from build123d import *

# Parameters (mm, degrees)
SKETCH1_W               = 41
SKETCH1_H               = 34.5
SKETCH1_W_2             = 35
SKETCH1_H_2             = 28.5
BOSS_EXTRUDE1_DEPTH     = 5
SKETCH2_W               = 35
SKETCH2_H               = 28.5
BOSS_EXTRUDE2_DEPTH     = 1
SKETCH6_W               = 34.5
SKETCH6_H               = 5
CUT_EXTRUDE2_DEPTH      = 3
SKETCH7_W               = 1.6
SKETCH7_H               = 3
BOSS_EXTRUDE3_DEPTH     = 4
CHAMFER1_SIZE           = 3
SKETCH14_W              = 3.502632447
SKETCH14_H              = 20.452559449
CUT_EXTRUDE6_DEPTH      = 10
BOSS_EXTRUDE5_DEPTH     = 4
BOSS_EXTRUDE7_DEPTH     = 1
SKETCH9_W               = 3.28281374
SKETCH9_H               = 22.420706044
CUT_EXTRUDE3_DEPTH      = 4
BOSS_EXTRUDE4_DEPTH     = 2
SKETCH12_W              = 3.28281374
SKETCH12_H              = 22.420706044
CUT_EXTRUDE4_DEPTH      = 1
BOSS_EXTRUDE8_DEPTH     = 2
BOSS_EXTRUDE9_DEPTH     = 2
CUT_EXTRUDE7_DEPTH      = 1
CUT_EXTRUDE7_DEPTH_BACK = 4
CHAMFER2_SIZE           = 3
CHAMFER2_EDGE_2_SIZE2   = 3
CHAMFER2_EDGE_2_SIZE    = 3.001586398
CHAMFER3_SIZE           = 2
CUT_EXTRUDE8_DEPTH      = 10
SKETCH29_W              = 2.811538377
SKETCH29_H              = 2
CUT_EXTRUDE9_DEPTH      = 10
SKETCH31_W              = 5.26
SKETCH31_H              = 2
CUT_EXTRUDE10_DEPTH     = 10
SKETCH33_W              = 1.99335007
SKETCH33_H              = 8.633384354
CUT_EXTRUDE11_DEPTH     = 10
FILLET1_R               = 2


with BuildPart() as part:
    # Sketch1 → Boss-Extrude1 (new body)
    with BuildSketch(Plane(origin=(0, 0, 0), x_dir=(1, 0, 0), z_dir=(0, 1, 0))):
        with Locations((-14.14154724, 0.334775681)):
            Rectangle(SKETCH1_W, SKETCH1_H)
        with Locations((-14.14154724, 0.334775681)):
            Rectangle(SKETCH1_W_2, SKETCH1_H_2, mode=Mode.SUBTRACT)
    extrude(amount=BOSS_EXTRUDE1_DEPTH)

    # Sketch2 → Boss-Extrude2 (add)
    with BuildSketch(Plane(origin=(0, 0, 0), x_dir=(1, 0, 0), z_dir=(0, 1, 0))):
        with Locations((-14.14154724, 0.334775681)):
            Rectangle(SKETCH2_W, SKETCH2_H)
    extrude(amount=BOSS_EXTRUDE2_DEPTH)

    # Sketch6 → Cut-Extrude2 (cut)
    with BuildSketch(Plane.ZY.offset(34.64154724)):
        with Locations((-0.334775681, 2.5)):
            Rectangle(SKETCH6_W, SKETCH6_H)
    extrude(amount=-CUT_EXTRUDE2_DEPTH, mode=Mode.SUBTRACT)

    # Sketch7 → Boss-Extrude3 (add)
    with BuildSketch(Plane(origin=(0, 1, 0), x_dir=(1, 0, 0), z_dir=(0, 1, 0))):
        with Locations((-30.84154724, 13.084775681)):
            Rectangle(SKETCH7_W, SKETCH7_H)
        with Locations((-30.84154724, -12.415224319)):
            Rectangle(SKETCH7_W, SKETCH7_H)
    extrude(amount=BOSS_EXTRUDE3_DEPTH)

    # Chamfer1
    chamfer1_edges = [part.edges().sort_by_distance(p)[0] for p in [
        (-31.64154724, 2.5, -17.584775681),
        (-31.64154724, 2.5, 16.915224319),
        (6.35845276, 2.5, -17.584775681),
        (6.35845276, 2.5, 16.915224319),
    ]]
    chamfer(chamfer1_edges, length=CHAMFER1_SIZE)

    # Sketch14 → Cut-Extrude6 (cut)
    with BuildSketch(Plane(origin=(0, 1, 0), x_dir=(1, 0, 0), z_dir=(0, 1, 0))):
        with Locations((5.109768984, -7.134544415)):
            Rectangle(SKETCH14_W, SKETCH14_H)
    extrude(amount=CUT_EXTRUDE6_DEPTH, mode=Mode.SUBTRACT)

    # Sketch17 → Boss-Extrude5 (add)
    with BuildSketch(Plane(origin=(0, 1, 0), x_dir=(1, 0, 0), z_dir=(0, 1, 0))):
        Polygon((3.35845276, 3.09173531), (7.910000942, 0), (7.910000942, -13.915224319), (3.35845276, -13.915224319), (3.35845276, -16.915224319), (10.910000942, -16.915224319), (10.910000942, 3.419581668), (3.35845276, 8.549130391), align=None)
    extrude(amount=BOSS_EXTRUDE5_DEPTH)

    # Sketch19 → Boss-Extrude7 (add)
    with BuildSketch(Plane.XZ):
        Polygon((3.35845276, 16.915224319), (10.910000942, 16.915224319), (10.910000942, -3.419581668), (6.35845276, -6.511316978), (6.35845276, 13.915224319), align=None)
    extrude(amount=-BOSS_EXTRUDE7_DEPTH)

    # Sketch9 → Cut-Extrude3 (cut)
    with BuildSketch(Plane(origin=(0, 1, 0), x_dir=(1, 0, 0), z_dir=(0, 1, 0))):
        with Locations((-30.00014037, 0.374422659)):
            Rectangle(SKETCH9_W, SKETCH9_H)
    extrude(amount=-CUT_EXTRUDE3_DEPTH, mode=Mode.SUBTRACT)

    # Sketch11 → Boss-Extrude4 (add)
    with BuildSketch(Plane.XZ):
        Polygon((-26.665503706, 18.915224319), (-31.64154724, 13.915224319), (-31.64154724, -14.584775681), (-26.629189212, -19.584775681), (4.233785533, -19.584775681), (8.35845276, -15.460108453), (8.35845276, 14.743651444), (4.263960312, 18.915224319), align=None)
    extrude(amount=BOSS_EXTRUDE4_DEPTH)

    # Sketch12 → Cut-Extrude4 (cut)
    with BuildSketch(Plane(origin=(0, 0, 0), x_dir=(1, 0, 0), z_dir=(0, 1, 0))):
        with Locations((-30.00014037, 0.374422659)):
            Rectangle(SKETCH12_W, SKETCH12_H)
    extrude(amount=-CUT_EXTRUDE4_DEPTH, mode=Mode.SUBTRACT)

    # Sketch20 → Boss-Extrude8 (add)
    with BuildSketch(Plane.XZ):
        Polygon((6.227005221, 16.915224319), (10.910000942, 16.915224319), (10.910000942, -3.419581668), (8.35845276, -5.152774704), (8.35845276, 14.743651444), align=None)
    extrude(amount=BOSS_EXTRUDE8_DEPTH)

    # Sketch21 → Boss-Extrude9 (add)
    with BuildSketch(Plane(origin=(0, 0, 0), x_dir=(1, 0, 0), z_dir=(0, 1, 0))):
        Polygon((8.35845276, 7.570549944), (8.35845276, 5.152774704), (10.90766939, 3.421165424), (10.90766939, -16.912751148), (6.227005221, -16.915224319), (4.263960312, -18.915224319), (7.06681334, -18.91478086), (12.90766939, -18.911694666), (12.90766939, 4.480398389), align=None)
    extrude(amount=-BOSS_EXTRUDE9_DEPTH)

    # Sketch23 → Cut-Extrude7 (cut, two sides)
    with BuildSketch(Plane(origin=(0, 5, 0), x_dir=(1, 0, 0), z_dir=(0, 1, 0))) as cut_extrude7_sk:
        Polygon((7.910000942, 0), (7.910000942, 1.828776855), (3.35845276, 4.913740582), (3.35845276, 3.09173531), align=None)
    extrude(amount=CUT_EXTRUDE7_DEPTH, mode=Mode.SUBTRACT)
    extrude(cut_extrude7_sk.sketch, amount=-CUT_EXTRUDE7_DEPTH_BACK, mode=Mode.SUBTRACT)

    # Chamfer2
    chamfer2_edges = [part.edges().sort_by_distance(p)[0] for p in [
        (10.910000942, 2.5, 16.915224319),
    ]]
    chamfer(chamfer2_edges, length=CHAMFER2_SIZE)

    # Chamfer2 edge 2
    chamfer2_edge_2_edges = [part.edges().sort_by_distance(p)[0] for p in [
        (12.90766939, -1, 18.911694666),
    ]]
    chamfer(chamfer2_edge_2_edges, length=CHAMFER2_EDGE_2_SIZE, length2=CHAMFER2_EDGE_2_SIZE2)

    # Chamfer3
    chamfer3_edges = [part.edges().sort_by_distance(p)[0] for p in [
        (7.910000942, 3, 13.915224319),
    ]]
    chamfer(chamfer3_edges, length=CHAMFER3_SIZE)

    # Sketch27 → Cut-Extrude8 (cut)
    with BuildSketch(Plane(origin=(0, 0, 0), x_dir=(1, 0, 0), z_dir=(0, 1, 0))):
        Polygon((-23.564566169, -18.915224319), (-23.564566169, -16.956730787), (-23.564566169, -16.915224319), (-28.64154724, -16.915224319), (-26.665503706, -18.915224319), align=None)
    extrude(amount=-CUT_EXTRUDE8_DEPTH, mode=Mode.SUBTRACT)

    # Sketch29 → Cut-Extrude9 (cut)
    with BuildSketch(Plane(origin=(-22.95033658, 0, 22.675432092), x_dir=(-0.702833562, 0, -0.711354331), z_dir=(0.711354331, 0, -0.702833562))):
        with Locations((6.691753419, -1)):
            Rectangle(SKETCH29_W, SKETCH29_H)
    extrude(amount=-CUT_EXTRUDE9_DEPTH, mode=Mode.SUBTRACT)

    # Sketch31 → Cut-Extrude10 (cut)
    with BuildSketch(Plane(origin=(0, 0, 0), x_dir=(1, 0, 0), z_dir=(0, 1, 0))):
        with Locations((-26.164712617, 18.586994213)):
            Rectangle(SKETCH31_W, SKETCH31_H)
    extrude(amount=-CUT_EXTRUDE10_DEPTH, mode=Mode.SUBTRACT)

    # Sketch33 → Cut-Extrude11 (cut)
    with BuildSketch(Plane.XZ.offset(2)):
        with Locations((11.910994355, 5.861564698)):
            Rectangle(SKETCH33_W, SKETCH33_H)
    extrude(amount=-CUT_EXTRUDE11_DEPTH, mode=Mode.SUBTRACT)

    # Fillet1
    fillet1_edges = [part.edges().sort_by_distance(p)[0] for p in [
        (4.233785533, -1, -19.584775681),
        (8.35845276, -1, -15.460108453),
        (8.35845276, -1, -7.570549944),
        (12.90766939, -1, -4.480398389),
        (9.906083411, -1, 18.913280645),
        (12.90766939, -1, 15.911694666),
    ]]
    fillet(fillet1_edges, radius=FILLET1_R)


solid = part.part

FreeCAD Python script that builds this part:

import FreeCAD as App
import Part
import Sketcher
Q = App.Units.Quantity


def edges_at(feature, points):
    """Names of the edges that pass closest to the given points."""
    edges = feature.Shape.Edges
    near = lambda p: min(range(len(edges)), key=lambda i: edges[i].distToShape(Part.Vertex(*p))[0])
    return sorted({f"Edge{near(p) + 1}" for p in points})

doc = App.newDocument("Part")
params = doc.addObject("Spreadsheet::Sheet", "Params")
for row, (alias, value) in enumerate([
    ("sketch1_width", "41 mm"),
    ("sketch1_width2", "35 mm"),
    ("sketch1_height", "34.5 mm"),
    ("sketch1_height2", "28.5 mm"),
    ("pad1_length", "5 mm"),
    ("sketch2_width", "35 mm"),
    ("sketch2_height", "28.5 mm"),
    ("pad2_length", "1 mm"),
    ("sketch3_width", "5 mm"),
    ("sketch3_height", "34.5 mm"),
    ("pocket1_length", "3 mm"),
    ("sketch4_height", "3 mm"),
    ("sketch4_width", "1.6 mm"),
    ("pad3_length", "4 mm"),
    ("chamfer_size", "3 mm"),
    ("pocket2_length", "10 mm"),
    ("sketch6_height", "3 mm"),
    ("pad4_length", "4 mm"),
    ("pad5_length", "1 mm"),
    ("pocket3_length", "4 mm"),
    ("sketch9_height", "28.5 mm"),
    ("pad6_length", "2 mm"),
    ("pocket4_length", "1 mm"),
    ("pad7_length", "2 mm"),
    ("pad8_length", "2 mm"),
    ("pocket5_length", "1 mm"),
    ("pocket5_length2", "4 mm"),
    ("chamfer2_size", "3 mm"),
    ("chamfer3_size", "3.001586 mm"),
    ("chamfer3_size2", "3 mm"),
    ("chamfer4_size", "2 mm"),
    ("sketch14_height", "2 mm"),
    ("pocket6_length", "10 mm"),
    ("sketch15_height", "2 mm"),
    ("pocket7_length", "10 mm"),
    ("sketch16_height", "2 mm"),
    ("sketch16_width", "5.26 mm"),
    ("pocket8_length", "10 mm"),
    ("pocket9_length", "10 mm"),
    ("fillet_radius", "2 mm"),
], start=1):
    params.set(f"A{row}", alias)
    params.set(f"B{row}", "=" + value)
    params.setAlias(f"B{row}", alias)

body = doc.addObject("PartDesign::Body", "Body")

# Sketch on XZ plane
sketch1 = doc.addObject("Sketcher::SketchObject", "Sketch")
body.addObject(sketch1)
sketch1.AttachmentSupport = (doc.XZ_Plane, [""])
sketch1.MapMode = "FlatFace"
sketch1.addGeometry([
    Part.LineSegment(App.Vector(-35, -18, 0), App.Vector(-35, 17, 0)),  # 0
    Part.LineSegment(App.Vector(-35, 17, 0), App.Vector(6, 17, 0)),  # 1
    Part.LineSegment(App.Vector(6, 17, 0), App.Vector(6, -18, 0)),  # 2
    Part.LineSegment(App.Vector(6, -18, 0), App.Vector(-35, -18, 0)),  # 3
    Part.LineSegment(App.Vector(3, 14, 0), App.Vector(-32, 14, 0)),  # 4
    Part.LineSegment(App.Vector(-32, 14, 0), App.Vector(-32, -15, 0)),  # 5
    Part.LineSegment(App.Vector(-32, -15, 0), App.Vector(3, -15, 0)),  # 6
    Part.LineSegment(App.Vector(3, -15, 0), App.Vector(3, 14, 0)),  # 7
], False)
sketch1.addConstraint([
    Sketcher.Constraint("Coincident", 0, 2, 1, 1),
    Sketcher.Constraint("Coincident", 1, 2, 2, 1),
    Sketcher.Constraint("Coincident", 2, 2, 3, 1),
    Sketcher.Constraint("Coincident", 3, 2, 0, 1),
    Sketcher.Constraint("Coincident", 4, 2, 5, 1),
    Sketcher.Constraint("Coincident", 5, 2, 6, 1),
    Sketcher.Constraint("Coincident", 6, 2, 7, 1),
    Sketcher.Constraint("Coincident", 7, 2, 4, 1),
    Sketcher.Constraint("Vertical", 0),
    Sketcher.Constraint("Horizontal", 1),
    Sketcher.Constraint("Vertical", 2),
    Sketcher.Constraint("Horizontal", 3),
    Sketcher.Constraint("Horizontal", 4),
    Sketcher.Constraint("Vertical", 5),
    Sketcher.Constraint("Horizontal", 6),
    Sketcher.Constraint("Vertical", 7),
    Sketcher.Constraint("DistanceX", 1, 1, 1, 2, Q("41 mm")),
    Sketcher.Constraint("DistanceX", 4, 2, 4, 1, Q("35 mm")),
    Sketcher.Constraint("DistanceY", 0, 1, 0, 2, Q("34.5 mm")),
    Sketcher.Constraint("DistanceY", 5, 2, 5, 1, Q("28.5 mm")),
    Sketcher.Constraint("DistanceX", 0, 2, 4, 2, Q("3 mm")),
    Sketcher.Constraint("DistanceY", 4, 2, 0, 2, Q("3 mm")),
    Sketcher.Constraint("DistanceX", 0, 2, -1, 1, Q("34.641547 mm")),
    Sketcher.Constraint("DistanceY", -1, 1, 0, 2, Q("16.915224 mm")),
])
sketch1.setExpression("Constraints[16]", "Params.sketch1_width")
sketch1.setExpression("Constraints[17]", "Params.sketch1_width2")
sketch1.setExpression("Constraints[18]", "Params.sketch1_height")
sketch1.setExpression("Constraints[19]", "Params.sketch1_height2")
pad1 = doc.addObject("PartDesign::Pad", "Pad")
body.addObject(pad1)
pad1.Profile = sketch1
pad1.setExpression("Length", "Params.pad1_length")
pad1.Reversed = True

# Sketch on XZ plane
sketch2 = doc.addObject("Sketcher::SketchObject", "Sketch001")
body.addObject(sketch2)
sketch2.AttachmentSupport = (doc.XZ_Plane, [""])
sketch2.MapMode = "FlatFace"
sketch2.addGeometry([
    Part.LineSegment(App.Vector(-32, -15, 0), App.Vector(-32, 14, 0)),
    Part.LineSegment(App.Vector(-32, 14, 0), App.Vector(3, 14, 0)),
    Part.LineSegment(App.Vector(3, 14, 0), App.Vector(3, -15, 0)),
    Part.LineSegment(App.Vector(3, -15, 0), App.Vector(-32, -15, 0)),
], False)
sketch2.addConstraint([
    Sketcher.Constraint("Coincident", 0, 2, 1, 1),
    Sketcher.Constraint("Coincident", 1, 2, 2, 1),
    Sketcher.Constraint("Coincident", 2, 2, 3, 1),
    Sketcher.Constraint("Coincident", 3, 2, 0, 1),
    Sketcher.Constraint("Vertical", 0),
    Sketcher.Constraint("Horizontal", 1),
    Sketcher.Constraint("Vertical", 2),
    Sketcher.Constraint("Horizontal", 3),
    Sketcher.Constraint("DistanceX", 1, 1, 1, 2, Q("35 mm")),
    Sketcher.Constraint("DistanceY", 0, 1, 0, 2, Q("28.5 mm")),
    Sketcher.Constraint("DistanceX", 0, 2, -1, 1, Q("31.641547 mm")),
    Sketcher.Constraint("DistanceY", -1, 1, 0, 2, Q("13.915224 mm")),
])
sketch2.setExpression("Constraints[8]", "Params.sketch2_width")
sketch2.setExpression("Constraints[9]", "Params.sketch2_height")
pad2 = doc.addObject("PartDesign::Pad", "Pad001")
body.addObject(pad2)
pad2.Profile = sketch2
pad2.setExpression("Length", "Params.pad2_length")
pad2.Reversed = True

# Sketch on YZ plane
sketch3 = doc.addObject("Sketcher::SketchObject", "Sketch002")
body.addObject(sketch3)
sketch3.AttachmentSupport = (doc.YZ_Plane, [""])
sketch3.MapMode = "FlatFace"
sketch3.AttachmentOffset = App.Placement(App.Vector(0, 0, -34.641547), App.Rotation())
sketch3.addGeometry([
    Part.LineSegment(App.Vector(5, -18, 0), App.Vector(0, -18, 0)),
    Part.LineSegment(App.Vector(0, -18, 0), App.Vector(0, 17, 0)),
    Part.LineSegment(App.Vector(0, 17, 0), App.Vector(5, 17, 0)),
    Part.LineSegment(App.Vector(5, 17, 0), App.Vector(5, -18, 0)),
], False)
sketch3.addConstraint([
    Sketcher.Constraint("Coincident", 0, 2, 1, 1),
    Sketcher.Constraint("Coincident", 1, 2, 2, 1),
    Sketcher.Constraint("Coincident", 2, 2, 3, 1),
    Sketcher.Constraint("Coincident", 3, 2, 0, 1),
    Sketcher.Constraint("Horizontal", 0),
    Sketcher.Constraint("Vertical", 1),
    Sketcher.Constraint("Horizontal", 2),
    Sketcher.Constraint("Vertical", 3),
    Sketcher.Constraint("PointOnObject", 0, 2, -2),
    Sketcher.Constraint("DistanceX", 0, 2, 0, 1, Q("5 mm")),
    Sketcher.Constraint("DistanceY", 1, 1, 1, 2, Q("34.5 mm")),
    Sketcher.Constraint("DistanceY", 0, 2, -1, 1, Q("17.584776 mm")),
])
sketch3.setExpression("Constraints[9]", "Params.sketch3_width")
sketch3.setExpression("Constraints[10]", "Params.sketch3_height")
pocket1 = doc.addObject("PartDesign::Pocket", "Pocket")
body.addObject(pocket1)
pocket1.Profile = sketch3
pocket1.setExpression("Length", "Params.pocket1_length")
pocket1.Reversed = True

# Sketch on XZ plane
sketch4 = doc.addObject("Sketcher::SketchObject", "Sketch003")
body.addObject(sketch4)
sketch4.AttachmentSupport = (doc.XZ_Plane, [""])
sketch4.MapMode = "FlatFace"
sketch4.AttachmentOffset = App.Placement(App.Vector(0, 0, -1), App.Rotation())
sketch4.addGeometry([
    Part.LineSegment(App.Vector(-31.6, -14.6, 0), App.Vector(-31.6, -11.6, 0)),  # 0
    Part.LineSegment(App.Vector(-31.6, -11.6, 0), App.Vector(-30, -11.6, 0)),  # 1
    Part.LineSegment(App.Vector(-30, -11.6, 0), App.Vector(-30, -14.6, 0)),  # 2
    Part.LineSegment(App.Vector(-30, -14.6, 0), App.Vector(-31.6, -14.6, 0)),  # 3
    Part.LineSegment(App.Vector(-31.6, 10.9, 0), App.Vector(-31.6, 13.9, 0)),  # 4
    Part.LineSegment(App.Vector(-31.6, 13.9, 0), App.Vector(-30, 13.9, 0)),  # 5
    Part.LineSegment(App.Vector(-30, 13.9, 0), App.Vector(-30, 10.9, 0)),  # 6
    Part.LineSegment(App.Vector(-30, 10.9, 0), App.Vector(-31.6, 10.9, 0)),  # 7
], False)
sketch4.addConstraint([
    Sketcher.Constraint("Coincident", 0, 2, 1, 1),
    Sketcher.Constraint("Coincident", 1, 2, 2, 1),
    Sketcher.Constraint("Coincident", 2, 2, 3, 1),
    Sketcher.Constraint("Coincident", 3, 2, 0, 1),
    Sketcher.Constraint("Coincident", 4, 2, 5, 1),
    Sketcher.Constraint("Coincident", 5, 2, 6, 1),
    Sketcher.Constraint("Coincident", 6, 2, 7, 1),
    Sketcher.Constraint("Coincident", 7, 2, 4, 1),
    Sketcher.Constraint("Vertical", 0),
    Sketcher.Constraint("Horizontal", 1),
    Sketcher.Constraint("Vertical", 2),
    Sketcher.Constraint("Horizontal", 3),
    Sketcher.Constraint("Vertical", 4),
    Sketcher.Constraint("Horizontal", 5),
    Sketcher.Constraint("Vertical", 6),
    Sketcher.Constraint("Horizontal", 7),
    Sketcher.Constraint("Vertical", 3, 2, 4, 2),
    Sketcher.Constraint("Vertical", 2, 2, 5, 2),
    Sketcher.Constraint("Equal", 2, 4),
    Sketcher.Constraint("DistanceY", 0, 1, 0, 2, Q("3 mm")),
    Sketcher.Constraint("DistanceX", 1, 1, 1, 2, Q("1.6 mm")),
    Sketcher.Constraint("DistanceY", 0, 2, 4, 2, Q("25.5 mm")),
    Sketcher.Constraint("DistanceX", 0, 2, -1, 1, Q("31.641547 mm")),
    Sketcher.Constraint("DistanceY", 0, 2, -1, 1, Q("11.584776 mm")),
])
sketch4.setExpression("Constraints[19]", "Params.sketch4_height")
sketch4.setExpression("Constraints[20]", "Params.sketch4_width")
pad3 = doc.addObject("PartDesign::Pad", "Pad002")
body.addObject(pad3)
pad3.Profile = sketch4
pad3.setExpression("Length", "Params.pad3_length")
pad3.Reversed = True
doc.recompute()

chamfer = doc.addObject("PartDesign::Chamfer", "Chamfer")
body.addObject(chamfer)
chamfer.Base = (pad3, edges_at(pad3, [
    (-31.642, 2.5, -17.585),
    (-31.642, 2.5, 16.915),
    (6.358, 2.5, -17.585),
    (6.358, 2.5, 16.915),
]))
chamfer.setExpression("Size", "Params.chamfer_size")

# Sketch on XZ plane
sketch5 = doc.addObject("Sketcher::SketchObject", "Sketch004")
body.addObject(sketch5)
sketch5.AttachmentSupport = (doc.XZ_Plane, [""])
sketch5.MapMode = "FlatFace"
sketch5.AttachmentOffset = App.Placement(App.Vector(0, 0, -1), App.Rotation())
sketch5.addGeometry([
    Part.LineSegment(App.Vector(3.4, -3.1, 0), App.Vector(3.4, 17.4, 0)),
    Part.LineSegment(App.Vector(3.4, 17.4, 0), App.Vector(6.9, 17.4, 0)),
    Part.LineSegment(App.Vector(6.9, 17.4, 0), App.Vector(6.9, -3.1, 0)),
    Part.LineSegment(App.Vector(6.9, -3.1, 0), App.Vector(3.4, -3.1, 0)),
], False)
sketch5.addConstraint([
    Sketcher.Constraint("Coincident", 0, 2, 1, 1),
    Sketcher.Constraint("Coincident", 1, 2, 2, 1),
    Sketcher.Constraint("Coincident", 2, 2, 3, 1),
    Sketcher.Constraint("Coincident", 3, 2, 0, 1),
    Sketcher.Constraint("Vertical", 0),
    Sketcher.Constraint("Horizontal", 1),
    Sketcher.Constraint("Vertical", 2),
    Sketcher.Constraint("Horizontal", 3),
    Sketcher.Constraint("DistanceY", 0, 1, 0, 2, Q("20.452559 mm")),
    Sketcher.Constraint("DistanceX", 1, 1, 1, 2, Q("3.502632 mm")),
    Sketcher.Constraint("DistanceX", -1, 1, 0, 2, Q("3.358453 mm")),
    Sketcher.Constraint("DistanceY", -1, 1, 0, 2, Q("17.360824 mm")),
])
pocket2 = doc.addObject("PartDesign::Pocket", "Pocket001")
body.addObject(pocket2)
pocket2.Profile = sketch5
pocket2.setExpression("Length", "Params.pocket2_length")

# Sketch on XZ plane
sketch6 = doc.addObject("Sketcher::SketchObject", "Sketch005")
body.addObject(sketch6)
sketch6.AttachmentSupport = (doc.XZ_Plane, [""])
sketch6.MapMode = "FlatFace"
sketch6.AttachmentOffset = App.Placement(App.Vector(0, 0, -1), App.Rotation())
sketch6.addGeometry([
    Part.LineSegment(App.Vector(3.4, -3.1, 0), App.Vector(7.9, 0, 0)),  # 0
    Part.LineSegment(App.Vector(7.9, 0, 0), App.Vector(7.9, 13.9, 0)),  # 1
    Part.LineSegment(App.Vector(7.9, 13.9, 0), App.Vector(3.4, 13.9, 0)),  # 2
    Part.LineSegment(App.Vector(3.4, 13.9, 0), App.Vector(3.4, 16.9, 0)),  # 3
    Part.LineSegment(App.Vector(3.4, 16.9, 0), App.Vector(10.9, 16.9, 0)),  # 4
    Part.LineSegment(App.Vector(10.9, 16.9, 0), App.Vector(10.9, -3.4, 0)),  # 5
    Part.LineSegment(App.Vector(10.9, -3.4, 0), App.Vector(3.4, -8.5, 0)),  # 6
    Part.LineSegment(App.Vector(3.4, -8.5, 0), App.Vector(3.4, -3.1, 0)),  # 7
], False)
sketch6.addConstraint([
    Sketcher.Constraint("Coincident", 0, 2, 1, 1),
    Sketcher.Constraint("Coincident", 1, 2, 2, 1),
    Sketcher.Constraint("Coincident", 2, 2, 3, 1),
    Sketcher.Constraint("Coincident", 3, 2, 4, 1),
    Sketcher.Constraint("Coincident", 4, 2, 5, 1),
    Sketcher.Constraint("Coincident", 5, 2, 6, 1),
    Sketcher.Constraint("Coincident", 6, 2, 7, 1),
    Sketcher.Constraint("Coincident", 7, 2, 0, 1),
    Sketcher.Constraint("Vertical", 1),
    Sketcher.Constraint("Horizontal", 2),
    Sketcher.Constraint("Vertical", 3),
    Sketcher.Constraint("Horizontal", 4),
    Sketcher.Constraint("Vertical", 5),
    Sketcher.Constraint("Vertical", 7),
    Sketcher.Constraint("PointOnObject", 0, 2, -1),
    Sketcher.Constraint("Parallel", 0, 6),
    Sketcher.Constraint("Vertical", 3, 2, 6, 2),
    Sketcher.Constraint("DistanceY", 3, 1, 3, 2, Q("3 mm")),
    Sketcher.Constraint("DistanceX", 1, 2, 4, 2, Q("3 mm")),
    Sketcher.Constraint("DistanceX", -1, 1, 0, 2, Q("7.910001 mm")),
    Sketcher.Constraint("DistanceX", 2, 2, 2, 1, Q("4.551548 mm")),
    Sketcher.Constraint("Distance", 0, Q("5.50231 mm")),
    Sketcher.Constraint("DistanceY", 1, 1, 1, 2, Q("13.915224 mm")),
    Sketcher.Constraint("DistanceY", 5, 2, 5, 1, Q("20.334806 mm")),
])
sketch6.setExpression("Constraints[17]", "Params.sketch6_height")
pad4 = doc.addObject("PartDesign::Pad", "Pad003")
body.addObject(pad4)
pad4.Profile = sketch6
pad4.setExpression("Length", "Params.pad4_length")
pad4.Reversed = True

# Sketch on XZ plane
sketch7 = doc.addObject("Sketcher::SketchObject", "Sketch006")
body.addObject(sketch7)
sketch7.AttachmentSupport = (doc.XZ_Plane, [""])
sketch7.MapMode = "FlatFace"
sketch7.addGeometry([
    Part.LineSegment(App.Vector(10.9, 16.9, 0), App.Vector(3.4, 16.9, 0)),  # 0
    Part.LineSegment(App.Vector(3.4, 16.9, 0), App.Vector(6.4, 13.9, 0)),  # 1
    Part.LineSegment(App.Vector(6.4, 13.9, 0), App.Vector(6.4, -6.5, 0)),  # 2
    Part.LineSegment(App.Vector(6.4, -6.5, 0), App.Vector(10.9, -3.4, 0)),  # 3
    Part.LineSegment(App.Vector(10.9, -3.4, 0), App.Vector(10.9, 16.9, 0)),  # 4
], False)
sketch7.addConstraint([
    Sketcher.Constraint("Coincident", 0, 2, 1, 1),
    Sketcher.Constraint("Coincident", 1, 2, 2, 1),
    Sketcher.Constraint("Coincident", 2, 2, 3, 1),
    Sketcher.Constraint("Coincident", 3, 2, 4, 1),
    Sketcher.Constraint("Coincident", 4, 2, 0, 1),
    Sketcher.Constraint("Horizontal", 0),
    Sketcher.Constraint("Vertical", 2),
    Sketcher.Constraint("Vertical", 4),
    Sketcher.Constraint("Angle", 1, Q("-45 deg")),
    Sketcher.Constraint("DistanceX", 0, 2, 1, 2, Q("3 mm")),
    Sketcher.Constraint("DistanceX", -1, 1, 3, 2, Q("10.910001 mm")),
    Sketcher.Constraint("DistanceX", 0, 2, 0, 1, Q("7.551548 mm")),
    Sketcher.Constraint("DistanceY", 2, 2, 2, 1, Q("20.426541 mm")),
    Sketcher.Constraint("Distance", 3, Q("5.50231 mm")),
    Sketcher.Constraint("DistanceY", 3, 2, -1, 1, Q("3.419582 mm")),
])
pad5 = doc.addObject("PartDesign::Pad", "Pad004")
body.addObject(pad5)
pad5.Profile = sketch7
pad5.setExpression("Length", "Params.pad5_length")
pad5.Reversed = True

# Sketch on XZ plane
sketch8 = doc.addObject("Sketcher::SketchObject", "Sketch007")
body.addObject(sketch8)
sketch8.AttachmentSupport = (doc.XZ_Plane, [""])
sketch8.MapMode = "FlatFace"
sketch8.AttachmentOffset = App.Placement(App.Vector(0, 0, -1), App.Rotation())
sketch8.addGeometry([
    Part.LineSegment(App.Vector(-31.6, -11.6, 0), App.Vector(-31.6, 10.8, 0)),
    Part.LineSegment(App.Vector(-31.6, 10.8, 0), App.Vector(-28.4, 10.8, 0)),
    Part.LineSegment(App.Vector(-28.4, 10.8, 0), App.Vector(-28.4, -11.6, 0)),
    Part.LineSegment(App.Vector(-28.4, -11.6, 0), App.Vector(-31.6, -11.6, 0)),
], False)
sketch8.addConstraint([
    Sketcher.Constraint("Coincident", 0, 2, 1, 1),
    Sketcher.Constraint("Coincident", 1, 2, 2, 1),
    Sketcher.Constraint("Coincident", 2, 2, 3, 1),
    Sketcher.Constraint("Coincident", 3, 2, 0, 1),
    Sketcher.Constraint("Vertical", 0),
    Sketcher.Constraint("Horizontal", 1),
    Sketcher.Constraint("Vertical", 2),
    Sketcher.Constraint("Horizontal", 3),
    Sketcher.Constraint("DistanceX", 1, 1, 1, 2, Q("3.282814 mm")),
    Sketcher.Constraint("DistanceY", 0, 1, 0, 2, Q("22.420706 mm")),
    Sketcher.Constraint("DistanceY", -1, 1, 0, 2, Q("10.83593 mm")),
    Sketcher.Constraint("DistanceX", 0, 2, -1, 1, Q("31.641547 mm")),
])
pocket3 = doc.addObject("PartDesign::Pocket", "Pocket002")
body.addObject(pocket3)
pocket3.Profile = sketch8
pocket3.setExpression("Length", "Params.pocket3_length")
pocket3.Reversed = True

# Sketch on XZ plane
sketch9 = doc.addObject("Sketcher::SketchObject", "Sketch008")
body.addObject(sketch9)
sketch9.AttachmentSupport = (doc.XZ_Plane, [""])
sketch9.MapMode = "FlatFace"
sketch9.addGeometry([
    Part.LineSegment(App.Vector(-27, 19, 0), App.Vector(-32, 14, 0)),  # 0
    Part.LineSegment(App.Vector(-32, 14, 0), App.Vector(-32, -15, 0)),  # 1
    Part.LineSegment(App.Vector(-32, -15, 0), App.Vector(-27, -20, 0)),  # 2
    Part.LineSegment(App.Vector(-27, -20, 0), App.Vector(4, -20, 0)),  # 3
    Part.LineSegment(App.Vector(4, -20, 0), App.Vector(8, -15, 0)),  # 4
    Part.LineSegment(App.Vector(8, -15, 0), App.Vector(8, 15, 0)),  # 5
    Part.LineSegment(App.Vector(8, 15, 0), App.Vector(4, 19, 0)),  # 6
    Part.LineSegment(App.Vector(4, 19, 0), App.Vector(-27, 19, 0)),  # 7
], False)
sketch9.addConstraint([
    Sketcher.Constraint("Coincident", 0, 2, 1, 1),
    Sketcher.Constraint("Coincident", 1, 2, 2, 1),
    Sketcher.Constraint("Coincident", 2, 2, 3, 1),
    Sketcher.Constraint("Coincident", 3, 2, 4, 1),
    Sketcher.Constraint("Coincident", 4, 2, 5, 1),
    Sketcher.Constraint("Coincident", 5, 2, 6, 1),
    Sketcher.Constraint("Coincident", 6, 2, 7, 1),
    Sketcher.Constraint("Coincident", 7, 2, 0, 1),
    Sketcher.Constraint("Vertical", 1),
    Sketcher.Constraint("Horizontal", 3),
    Sketcher.Constraint("Vertical", 5),
    Sketcher.Constraint("Horizontal", 7),
    Sketcher.Constraint("Angle", 4, Q("45 deg")),
    Sketcher.Constraint("DistanceY", 1, 2, 1, 1, Q("28.5 mm")),
    Sketcher.Constraint("DistanceY", 2, 2, 1, 2, Q("5 mm")),
    Sketcher.Constraint("DistanceX", 1, 2, 4, 2, Q("40 mm")),
    Sketcher.Constraint("DistanceY", 0, 2, 6, 2, Q("5 mm")),
    Sketcher.Constraint("DistanceY", 5, 1, 5, 2, Q("30.20376 mm")),
    Sketcher.Constraint("Distance", 0, Q("7.054148 mm")),
    Sketcher.Constraint("Distance", 2, Q("7.079812 mm")),
    Sketcher.Constraint("Distance", 4, Q("5.83316 mm")),
    Sketcher.Constraint("DistanceX", 7, 2, 7, 1, Q("30.929464 mm")),
    Sketcher.Constraint("DistanceX", 2, 2, -1, 1, Q("26.629189 mm")),
    Sketcher.Constraint("DistanceY", 4, 2, -1, 1, Q("15.460108 mm")),
])
sketch9.setExpression("Constraints[13]", "Params.sketch9_height")
pad6 = doc.addObject("PartDesign::Pad", "Pad005")
body.addObject(pad6)
pad6.Profile = sketch9
pad6.setExpression("Length", "Params.pad6_length")

# Sketch on XZ plane
sketch10 = doc.addObject("Sketcher::SketchObject", "Sketch009")
body.addObject(sketch10)
sketch10.AttachmentSupport = (doc.XZ_Plane, [""])
sketch10.MapMode = "FlatFace"
sketch10.addGeometry([
    Part.LineSegment(App.Vector(-31.6, -11.6, 0), App.Vector(-31.6, 10.8, 0)),
    Part.LineSegment(App.Vector(-31.6, 10.8, 0), App.Vector(-28.4, 10.8, 0)),
    Part.LineSegment(App.Vector(-28.4, 10.8, 0), App.Vector(-28.4, -11.6, 0)),
    Part.LineSegment(App.Vector(-28.4, -11.6, 0), App.Vector(-31.6, -11.6, 0)),
], False)
sketch10.addConstraint([
    Sketcher.Constraint("Coincident", 0, 2, 1, 1),
    Sketcher.Constraint("Coincident", 1, 2, 2, 1),
    Sketcher.Constraint("Coincident", 2, 2, 3, 1),
    Sketcher.Constraint("Coincident", 3, 2, 0, 1),
    Sketcher.Constraint("Vertical", 0),
    Sketcher.Constraint("Horizontal", 1),
    Sketcher.Constraint("Vertical", 2),
    Sketcher.Constraint("Horizontal", 3),
    Sketcher.Constraint("DistanceX", 1, 1, 1, 2, Q("3.282814 mm")),
    Sketcher.Constraint("DistanceY", 0, 1, 0, 2, Q("22.420706 mm")),
    Sketcher.Constraint("DistanceY", -1, 1, 0, 2, Q("10.83593 mm")),
    Sketcher.Constraint("DistanceX", 0, 2, -1, 1, Q("31.641547 mm")),
])
pocket4 = doc.addObject("PartDesign::Pocket", "Pocket003")
body.addObject(pocket4)
pocket4.Profile = sketch10
pocket4.setExpression("Length", "Params.pocket4_length")
pocket4.Reversed = True

# Sketch on XZ plane
sketch11 = doc.addObject("Sketcher::SketchObject", "Sketch010")
body.addObject(sketch11)
sketch11.AttachmentSupport = (doc.XZ_Plane, [""])
sketch11.MapMode = "FlatFace"
sketch11.addGeometry([
    Part.LineSegment(App.Vector(10.9, 16.9, 0), App.Vector(6.2, 16.9, 0)),  # 0
    Part.LineSegment(App.Vector(6.2, 16.9, 0), App.Vector(8.4, 14.7, 0)),  # 1
    Part.LineSegment(App.Vector(8.4, 14.7, 0), App.Vector(8.4, -5.2, 0)),  # 2
    Part.LineSegment(App.Vector(8.4, -5.2, 0), App.Vector(10.9, -3.4, 0)),  # 3
    Part.LineSegment(App.Vector(10.9, -3.4, 0), App.Vector(10.9, 16.9, 0)),  # 4
], False)
sketch11.addConstraint([
    Sketcher.Constraint("Coincident", 0, 2, 1, 1),
    Sketcher.Constraint("Coincident", 1, 2, 2, 1),
    Sketcher.Constraint("Coincident", 2, 2, 3, 1),
    Sketcher.Constraint("Coincident", 3, 2, 4, 1),
    Sketcher.Constraint("Coincident", 4, 2, 0, 1),
    Sketcher.Constraint("Horizontal", 0),
    Sketcher.Constraint("Vertical", 2),
    Sketcher.Constraint("Vertical", 4),
    Sketcher.Constraint("DistanceX", -1, 1, 3, 2, Q("10.910001 mm")),
    Sketcher.Constraint("DistanceY", 2, 2, 0, 2, Q("22.067999 mm")),
    Sketcher.Constraint("DistanceX", 0, 2, 0, 1, Q("4.682996 mm")),
    Sketcher.Constraint("DistanceY", 2, 2, 2, 1, Q("19.896426 mm")),
    Sketcher.Constraint("DistanceY", 4, 1, 4, 2, Q("20.334806 mm")),
    Sketcher.Constraint("DistanceY", -1, 1, 1, 2, Q("14.743651 mm")),
    Sketcher.Constraint("DistanceX", 2, 2, 3, 2, Q("2.551548 mm")),
])
pad7 = doc.addObject("PartDesign::Pad", "Pad006")
body.addObject(pad7)
pad7.Profile = sketch11
pad7.setExpression("Length", "Params.pad7_length")

# Sketch on XZ plane
sketch12 = doc.addObject("Sketcher::SketchObject", "Sketch011")
body.addObject(sketch12)
sketch12.AttachmentSupport = (doc.XZ_Plane, [""])
sketch12.MapMode = "FlatFace"
sketch12.addGeometry([
    Part.LineSegment(App.Vector(8.4, -7.6, 0), App.Vector(8.4, -5.2, 0)),  # 0
    Part.LineSegment(App.Vector(8.4, -5.2, 0), App.Vector(10.9, -3.4, 0)),  # 1
    Part.LineSegment(App.Vector(10.9, -3.4, 0), App.Vector(10.9, 16.9, 0)),  # 2
    Part.LineSegment(App.Vector(10.9, 16.9, 0), App.Vector(6.2, 16.9, 0)),  # 3
    Part.LineSegment(App.Vector(6.2, 16.9, 0), App.Vector(4.3, 18.9, 0)),  # 4
    Part.LineSegment(App.Vector(4.3, 18.9, 0), App.Vector(7.1, 18.9, 0)),  # 5
    Part.LineSegment(App.Vector(7.1, 18.9, 0), App.Vector(12.9, 18.9, 0)),  # 6
    Part.LineSegment(App.Vector(12.9, 18.9, 0), App.Vector(12.9, -4.5, 0)),  # 7
    Part.LineSegment(App.Vector(12.9, -4.5, 0), App.Vector(8.4, -7.6, 0)),  # 8
], False)
sketch12.addConstraint([
    Sketcher.Constraint("Coincident", 0, 2, 1, 1),
    Sketcher.Constraint("Coincident", 1, 2, 2, 1),
    Sketcher.Constraint("Coincident", 2, 2, 3, 1),
    Sketcher.Constraint("Coincident", 3, 2, 4, 1),
    Sketcher.Constraint("Coincident", 4, 2, 5, 1),
    Sketcher.Constraint("Coincident", 5, 2, 6, 1),
    Sketcher.Constraint("Coincident", 6, 2, 7, 1),
    Sketcher.Constraint("Coincident", 7, 2, 8, 1),
    Sketcher.Constraint("Coincident", 8, 2, 0, 1),
    Sketcher.Constraint("Vertical", 0),
    Sketcher.Constraint("Vertical", 2),
    Sketcher.Constraint("Vertical", 7),
    Sketcher.Constraint("Parallel", 3, 6),
    Sketcher.Constraint("Parallel", 1, 8),
    Sketcher.Constraint("DistanceY", 3, 2, 4, 2, Q("2 mm")),
    Sketcher.Constraint("DistanceX", 2, 2, 6, 2, Q("2 mm")),
    Sketcher.Constraint("DistanceY", 0, 2, 3, 2, Q("22.067999 mm")),
    Sketcher.Constraint("DistanceY", 7, 2, -1, 1, Q("4.480398 mm")),
    Sketcher.Constraint("DistanceY", 8, 2, 2, 2, Q("24.483301 mm")),
    Sketcher.Constraint("Distance", 8, Q("5.499492 mm")),
    Sketcher.Constraint("DistanceY", 0, 1, 0, 2, Q("2.417775 mm")),
    Sketcher.Constraint("DistanceY", 2, 1, 2, 2, Q("20.333917 mm")),
    Sketcher.Constraint("DistanceY", 7, 2, 7, 1, Q("23.392093 mm")),
    Sketcher.Constraint("DistanceX", -1, 1, 1, 2, Q("10.907669 mm")),
    Sketcher.Constraint("DistanceX", -1, 1, 4, 2, Q("4.26396 mm")),
    Sketcher.Constraint("DistanceX", 3, 2, 5, 2, Q("0.839808 mm")),
    Sketcher.Constraint("DistanceX", 5, 2, 0, 2, Q("1.291639 mm")),
])
pad8 = doc.addObject("PartDesign::Pad", "Pad007")
body.addObject(pad8)
pad8.Profile = sketch12
pad8.setExpression("Length", "Params.pad8_length")

# Sketch on XZ plane
sketch13 = doc.addObject("Sketcher::SketchObject", "Sketch012")
body.addObject(sketch13)
sketch13.AttachmentSupport = (doc.XZ_Plane, [""])
sketch13.MapMode = "FlatFace"
sketch13.AttachmentOffset = App.Placement(App.Vector(0, 0, -5), App.Rotation())
sketch13.addGeometry([
    Part.LineSegment(App.Vector(7.9, 0, 0), App.Vector(7.9, -1.8, 0)),
    Part.LineSegment(App.Vector(7.9, -1.8, 0), App.Vector(3.4, -4.9, 0)),
    Part.LineSegment(App.Vector(3.4, -4.9, 0), App.Vector(3.4, -3.1, 0)),
    Part.LineSegment(App.Vector(3.4, -3.1, 0), App.Vector(7.9, 0, 0)),
], False)
sketch13.addConstraint([
    Sketcher.Constraint("Coincident", 0, 2, 1, 1),
    Sketcher.Constraint("Coincident", 1, 2, 2, 1),
    Sketcher.Constraint("Coincident", 2, 2, 3, 1),
    Sketcher.Constraint("Coincident", 3, 2, 0, 1),
    Sketcher.Constraint("Vertical", 0),
    Sketcher.Constraint("Vertical", 2),
    Sketcher.Constraint("PointOnObject", 3, 2, -1),
    Sketcher.Constraint("DistanceX", -1, 1, 0, 2, Q("7.910001 mm")),
    Sketcher.Constraint("Distance", 1, Q("5.498508 mm")),
    Sketcher.Constraint("Distance", 3, Q("5.50231 mm")),
    Sketcher.Constraint("DistanceY", 0, 2, 0, 1, Q("1.828777 mm")),
    Sketcher.Constraint("DistanceY", 1, 2, -1, 1, Q("4.913741 mm")),
])
pocket5 = doc.addObject("PartDesign::Pocket", "Pocket004")
body.addObject(pocket5)
pocket5.Profile = sketch13
pocket5.Type = "TwoLengths"
pocket5.setExpression("Length", "Params.pocket5_length")
pocket5.setExpression("Length2", "Params.pocket5_length2")
doc.recompute()

chamfer2 = doc.addObject("PartDesign::Chamfer", "Chamfer001")
body.addObject(chamfer2)
chamfer2.Base = (pocket5, edges_at(pocket5, [(10.91, 2.5, 16.915)]))
chamfer2.setExpression("Size", "Params.chamfer2_size")
doc.recompute()

chamfer3 = doc.addObject("PartDesign::Chamfer", "Chamfer002")
body.addObject(chamfer3)
chamfer3.Base = (chamfer2, edges_at(chamfer2, [(12.908, -1, 18.912)]))
chamfer3.ChamferType = "Two distances"
chamfer3.setExpression("Size", "Params.chamfer3_size")
chamfer3.setExpression("Size2", "Params.chamfer3_size2")
doc.recompute()

chamfer4 = doc.addObject("PartDesign::Chamfer", "Chamfer003")
body.addObject(chamfer4)
chamfer4.Base = (chamfer3, edges_at(chamfer3, [(7.91, 3, 13.915)]))
chamfer4.setExpression("Size", "Params.chamfer4_size")

# Sketch on XZ plane
sketch14 = doc.addObject("Sketcher::SketchObject", "Sketch013")
body.addObject(sketch14)
sketch14.AttachmentSupport = (doc.XZ_Plane, [""])
sketch14.MapMode = "FlatFace"
sketch14.addGeometry([
    Part.LineSegment(App.Vector(-23.6, 18.9, 0), App.Vector(-23.6, 16.9, 0)),
    Part.LineSegment(App.Vector(-23.6, 16.9, 0), App.Vector(-28.6, 16.9, 0)),
    Part.LineSegment(App.Vector(-28.6, 16.9, 0), App.Vector(-26.7, 18.9, 0)),
    Part.LineSegment(App.Vector(-26.7, 18.9, 0), App.Vector(-23.6, 18.9, 0)),
], False)
sketch14.addConstraint([
    Sketcher.Constraint("Coincident", 0, 2, 1, 1),
    Sketcher.Constraint("Coincident", 1, 2, 2, 1),
    Sketcher.Constraint("Coincident", 2, 2, 3, 1),
    Sketcher.Constraint("Coincident", 3, 2, 0, 1),
    Sketcher.Constraint("Vertical", 0),
    Sketcher.Constraint("Horizontal", 1),
    Sketcher.Constraint("Horizontal", 3),
    Sketcher.Constraint("DistanceY", 0, 2, 0, 1, Q("2 mm")),
    Sketcher.Constraint("DistanceX", 1, 2, 1, 1, Q("5.076981 mm")),
    Sketcher.Constraint("Distance", 2, Q("2.811538 mm")),
    Sketcher.Constraint("DistanceX", 0, 2, -1, 1, Q("23.564566 mm")),
    Sketcher.Constraint("DistanceY", -1, 1, 0, 2, Q("16.915224 mm")),
])
sketch14.setExpression("Constraints[7]", "Params.sketch14_height")
pocket6 = doc.addObject("PartDesign::Pocket", "Pocket005")
body.addObject(pocket6)
pocket6.Profile = sketch14
pocket6.setExpression("Length", "Params.pocket6_length")
pocket6.Reversed = True

# Sketch on an angled plane
sketch15 = doc.addObject("Sketcher::SketchObject", "Sketch014")
body.addObject(sketch15)
sketch15.Placement = App.Placement(App.Vector(-22.950337, 0, 22.675432), App.Rotation(App.Vector(-0.702833562, 0, -0.711354331), App.Vector(0, 1, 0), App.Vector(0.711354331, 0, -0.702833562), "ZXY"))
sketch15.addGeometry([
    Part.LineSegment(App.Vector(5.3, 0, 0), App.Vector(5.3, -2, 0)),
    Part.LineSegment(App.Vector(5.3, -2, 0), App.Vector(8.1, -2, 0)),
    Part.LineSegment(App.Vector(8.1, -2, 0), App.Vector(8.1, 0, 0)),
    Part.LineSegment(App.Vector(8.1, 0, 0), App.Vector(5.3, 0, 0)),
], False)
sketch15.addConstraint([
    Sketcher.Constraint("Coincident", 0, 2, 1, 1),
    Sketcher.Constraint("Coincident", 1, 2, 2, 1),
    Sketcher.Constraint("Coincident", 2, 2, 3, 1),
    Sketcher.Constraint("Coincident", 3, 2, 0, 1),
    Sketcher.Constraint("Vertical", 0),
    Sketcher.Constraint("Horizontal", 1),
    Sketcher.Constraint("Vertical", 2),
    Sketcher.Constraint("Horizontal", 3),
    Sketcher.Constraint("PointOnObject", 2, 2, -1),
    Sketcher.Constraint("DistanceY", 0, 2, 0, 1, Q("2 mm")),
    Sketcher.Constraint("DistanceX", 1, 1, 1, 2, Q("2.811538 mm")),
    Sketcher.Constraint("DistanceX", -1, 1, 0, 2, Q("5.285984 mm")),
])
sketch15.setExpression("Constraints[9]", "Params.sketch15_height")
pocket7 = doc.addObject("PartDesign::Pocket", "Pocket006")
body.addObject(pocket7)
pocket7.Profile = sketch15
pocket7.setExpression("Length", "Params.pocket7_length")

# Sketch on XZ plane
sketch16 = doc.addObject("Sketcher::SketchObject", "Sketch015")
body.addObject(sketch16)
sketch16.AttachmentSupport = (doc.XZ_Plane, [""])
sketch16.MapMode = "FlatFace"
sketch16.addGeometry([
    Part.LineSegment(App.Vector(-28.8, -19.6, 0), App.Vector(-28.8, -17.6, 0)),
    Part.LineSegment(App.Vector(-28.8, -17.6, 0), App.Vector(-23.5, -17.6, 0)),
    Part.LineSegment(App.Vector(-23.5, -17.6, 0), App.Vector(-23.5, -19.6, 0)),
    Part.LineSegment(App.Vector(-23.5, -19.6, 0), App.Vector(-28.8, -19.6, 0)),
], False)
sketch16.addConstraint([
    Sketcher.Constraint("Coincident", 0, 2, 1, 1),
    Sketcher.Constraint("Coincident", 1, 2, 2, 1),
    Sketcher.Constraint("Coincident", 2, 2, 3, 1),
    Sketcher.Constraint("Coincident", 3, 2, 0, 1),
    Sketcher.Constraint("Vertical", 0),
    Sketcher.Constraint("Horizontal", 1),
    Sketcher.Constraint("Vertical", 2),
    Sketcher.Constraint("Horizontal", 3),
    Sketcher.Constraint("DistanceY", 0, 1, 0, 2, Q("2 mm")),
    Sketcher.Constraint("DistanceX", 1, 1, 1, 2, Q("5.26 mm")),
    Sketcher.Constraint("DistanceX", 0, 2, -1, 1, Q("28.794713 mm")),
    Sketcher.Constraint("DistanceY", 0, 2, -1, 1, Q("17.586994 mm")),
])
sketch16.setExpression("Constraints[8]", "Params.sketch16_height")
sketch16.setExpression("Constraints[9]", "Params.sketch16_width")
pocket8 = doc.addObject("PartDesign::Pocket", "Pocket007")
body.addObject(pocket8)
pocket8.Profile = sketch16
pocket8.setExpression("Length", "Params.pocket8_length")
pocket8.Reversed = True

# Sketch on XZ plane
sketch17 = doc.addObject("Sketcher::SketchObject", "Sketch016")
body.addObject(sketch17)
sketch17.AttachmentSupport = (doc.XZ_Plane, [""])
sketch17.MapMode = "FlatFace"
sketch17.AttachmentOffset = App.Placement(App.Vector(0, 0, 2), App.Rotation())
sketch17.addGeometry([
    Part.LineSegment(App.Vector(10.9, 10.2, 0), App.Vector(10.9, 1.5, 0)),
    Part.LineSegment(App.Vector(10.9, 1.5, 0), App.Vector(12.9, 1.5, 0)),
    Part.LineSegment(App.Vector(12.9, 1.5, 0), App.Vector(12.9, 10.2, 0)),
    Part.LineSegment(App.Vector(12.9, 10.2, 0), App.Vector(10.9, 10.2, 0)),
], False)
sketch17.addConstraint([
    Sketcher.Constraint("Coincident", 0, 2, 1, 1),
    Sketcher.Constraint("Coincident", 1, 2, 2, 1),
    Sketcher.Constraint("Coincident", 2, 2, 3, 1),
    Sketcher.Constraint("Coincident", 3, 2, 0, 1),
    Sketcher.Constraint("Vertical", 0),
    Sketcher.Constraint("Horizontal", 1),
    Sketcher.Constraint("Vertical", 2),
    Sketcher.Constraint("Horizontal", 3),
    Sketcher.Constraint("DistanceX", 1, 1, 1, 2, Q("1.99335 mm")),
    Sketcher.Constraint("DistanceY", 0, 2, 0, 1, Q("8.633384 mm")),
    Sketcher.Constraint("DistanceX", -1, 1, 0, 2, Q("10.914319 mm")),
    Sketcher.Constraint("DistanceY", -1, 1, 0, 2, Q("1.544873 mm")),
])
pocket9 = doc.addObject("PartDesign::Pocket", "Pocket008")
body.addObject(pocket9)
pocket9.Profile = sketch17
pocket9.setExpression("Length", "Params.pocket9_length")
doc.recompute()

fillet = doc.addObject("PartDesign::Fillet", "Fillet")
body.addObject(fillet)
fillet.Base = (pocket9, edges_at(pocket9, [
    (4.234, -1, -19.585),
    (8.358, -1, -15.46),
    (8.358, -1, -7.571),
    (12.908, -1, -4.48),
    (9.906, -1, 18.913),
    (12.908, -1, 15.912),
]))
fillet.setExpression("Radius", "Params.fillet_radius")

doc.recompute()
